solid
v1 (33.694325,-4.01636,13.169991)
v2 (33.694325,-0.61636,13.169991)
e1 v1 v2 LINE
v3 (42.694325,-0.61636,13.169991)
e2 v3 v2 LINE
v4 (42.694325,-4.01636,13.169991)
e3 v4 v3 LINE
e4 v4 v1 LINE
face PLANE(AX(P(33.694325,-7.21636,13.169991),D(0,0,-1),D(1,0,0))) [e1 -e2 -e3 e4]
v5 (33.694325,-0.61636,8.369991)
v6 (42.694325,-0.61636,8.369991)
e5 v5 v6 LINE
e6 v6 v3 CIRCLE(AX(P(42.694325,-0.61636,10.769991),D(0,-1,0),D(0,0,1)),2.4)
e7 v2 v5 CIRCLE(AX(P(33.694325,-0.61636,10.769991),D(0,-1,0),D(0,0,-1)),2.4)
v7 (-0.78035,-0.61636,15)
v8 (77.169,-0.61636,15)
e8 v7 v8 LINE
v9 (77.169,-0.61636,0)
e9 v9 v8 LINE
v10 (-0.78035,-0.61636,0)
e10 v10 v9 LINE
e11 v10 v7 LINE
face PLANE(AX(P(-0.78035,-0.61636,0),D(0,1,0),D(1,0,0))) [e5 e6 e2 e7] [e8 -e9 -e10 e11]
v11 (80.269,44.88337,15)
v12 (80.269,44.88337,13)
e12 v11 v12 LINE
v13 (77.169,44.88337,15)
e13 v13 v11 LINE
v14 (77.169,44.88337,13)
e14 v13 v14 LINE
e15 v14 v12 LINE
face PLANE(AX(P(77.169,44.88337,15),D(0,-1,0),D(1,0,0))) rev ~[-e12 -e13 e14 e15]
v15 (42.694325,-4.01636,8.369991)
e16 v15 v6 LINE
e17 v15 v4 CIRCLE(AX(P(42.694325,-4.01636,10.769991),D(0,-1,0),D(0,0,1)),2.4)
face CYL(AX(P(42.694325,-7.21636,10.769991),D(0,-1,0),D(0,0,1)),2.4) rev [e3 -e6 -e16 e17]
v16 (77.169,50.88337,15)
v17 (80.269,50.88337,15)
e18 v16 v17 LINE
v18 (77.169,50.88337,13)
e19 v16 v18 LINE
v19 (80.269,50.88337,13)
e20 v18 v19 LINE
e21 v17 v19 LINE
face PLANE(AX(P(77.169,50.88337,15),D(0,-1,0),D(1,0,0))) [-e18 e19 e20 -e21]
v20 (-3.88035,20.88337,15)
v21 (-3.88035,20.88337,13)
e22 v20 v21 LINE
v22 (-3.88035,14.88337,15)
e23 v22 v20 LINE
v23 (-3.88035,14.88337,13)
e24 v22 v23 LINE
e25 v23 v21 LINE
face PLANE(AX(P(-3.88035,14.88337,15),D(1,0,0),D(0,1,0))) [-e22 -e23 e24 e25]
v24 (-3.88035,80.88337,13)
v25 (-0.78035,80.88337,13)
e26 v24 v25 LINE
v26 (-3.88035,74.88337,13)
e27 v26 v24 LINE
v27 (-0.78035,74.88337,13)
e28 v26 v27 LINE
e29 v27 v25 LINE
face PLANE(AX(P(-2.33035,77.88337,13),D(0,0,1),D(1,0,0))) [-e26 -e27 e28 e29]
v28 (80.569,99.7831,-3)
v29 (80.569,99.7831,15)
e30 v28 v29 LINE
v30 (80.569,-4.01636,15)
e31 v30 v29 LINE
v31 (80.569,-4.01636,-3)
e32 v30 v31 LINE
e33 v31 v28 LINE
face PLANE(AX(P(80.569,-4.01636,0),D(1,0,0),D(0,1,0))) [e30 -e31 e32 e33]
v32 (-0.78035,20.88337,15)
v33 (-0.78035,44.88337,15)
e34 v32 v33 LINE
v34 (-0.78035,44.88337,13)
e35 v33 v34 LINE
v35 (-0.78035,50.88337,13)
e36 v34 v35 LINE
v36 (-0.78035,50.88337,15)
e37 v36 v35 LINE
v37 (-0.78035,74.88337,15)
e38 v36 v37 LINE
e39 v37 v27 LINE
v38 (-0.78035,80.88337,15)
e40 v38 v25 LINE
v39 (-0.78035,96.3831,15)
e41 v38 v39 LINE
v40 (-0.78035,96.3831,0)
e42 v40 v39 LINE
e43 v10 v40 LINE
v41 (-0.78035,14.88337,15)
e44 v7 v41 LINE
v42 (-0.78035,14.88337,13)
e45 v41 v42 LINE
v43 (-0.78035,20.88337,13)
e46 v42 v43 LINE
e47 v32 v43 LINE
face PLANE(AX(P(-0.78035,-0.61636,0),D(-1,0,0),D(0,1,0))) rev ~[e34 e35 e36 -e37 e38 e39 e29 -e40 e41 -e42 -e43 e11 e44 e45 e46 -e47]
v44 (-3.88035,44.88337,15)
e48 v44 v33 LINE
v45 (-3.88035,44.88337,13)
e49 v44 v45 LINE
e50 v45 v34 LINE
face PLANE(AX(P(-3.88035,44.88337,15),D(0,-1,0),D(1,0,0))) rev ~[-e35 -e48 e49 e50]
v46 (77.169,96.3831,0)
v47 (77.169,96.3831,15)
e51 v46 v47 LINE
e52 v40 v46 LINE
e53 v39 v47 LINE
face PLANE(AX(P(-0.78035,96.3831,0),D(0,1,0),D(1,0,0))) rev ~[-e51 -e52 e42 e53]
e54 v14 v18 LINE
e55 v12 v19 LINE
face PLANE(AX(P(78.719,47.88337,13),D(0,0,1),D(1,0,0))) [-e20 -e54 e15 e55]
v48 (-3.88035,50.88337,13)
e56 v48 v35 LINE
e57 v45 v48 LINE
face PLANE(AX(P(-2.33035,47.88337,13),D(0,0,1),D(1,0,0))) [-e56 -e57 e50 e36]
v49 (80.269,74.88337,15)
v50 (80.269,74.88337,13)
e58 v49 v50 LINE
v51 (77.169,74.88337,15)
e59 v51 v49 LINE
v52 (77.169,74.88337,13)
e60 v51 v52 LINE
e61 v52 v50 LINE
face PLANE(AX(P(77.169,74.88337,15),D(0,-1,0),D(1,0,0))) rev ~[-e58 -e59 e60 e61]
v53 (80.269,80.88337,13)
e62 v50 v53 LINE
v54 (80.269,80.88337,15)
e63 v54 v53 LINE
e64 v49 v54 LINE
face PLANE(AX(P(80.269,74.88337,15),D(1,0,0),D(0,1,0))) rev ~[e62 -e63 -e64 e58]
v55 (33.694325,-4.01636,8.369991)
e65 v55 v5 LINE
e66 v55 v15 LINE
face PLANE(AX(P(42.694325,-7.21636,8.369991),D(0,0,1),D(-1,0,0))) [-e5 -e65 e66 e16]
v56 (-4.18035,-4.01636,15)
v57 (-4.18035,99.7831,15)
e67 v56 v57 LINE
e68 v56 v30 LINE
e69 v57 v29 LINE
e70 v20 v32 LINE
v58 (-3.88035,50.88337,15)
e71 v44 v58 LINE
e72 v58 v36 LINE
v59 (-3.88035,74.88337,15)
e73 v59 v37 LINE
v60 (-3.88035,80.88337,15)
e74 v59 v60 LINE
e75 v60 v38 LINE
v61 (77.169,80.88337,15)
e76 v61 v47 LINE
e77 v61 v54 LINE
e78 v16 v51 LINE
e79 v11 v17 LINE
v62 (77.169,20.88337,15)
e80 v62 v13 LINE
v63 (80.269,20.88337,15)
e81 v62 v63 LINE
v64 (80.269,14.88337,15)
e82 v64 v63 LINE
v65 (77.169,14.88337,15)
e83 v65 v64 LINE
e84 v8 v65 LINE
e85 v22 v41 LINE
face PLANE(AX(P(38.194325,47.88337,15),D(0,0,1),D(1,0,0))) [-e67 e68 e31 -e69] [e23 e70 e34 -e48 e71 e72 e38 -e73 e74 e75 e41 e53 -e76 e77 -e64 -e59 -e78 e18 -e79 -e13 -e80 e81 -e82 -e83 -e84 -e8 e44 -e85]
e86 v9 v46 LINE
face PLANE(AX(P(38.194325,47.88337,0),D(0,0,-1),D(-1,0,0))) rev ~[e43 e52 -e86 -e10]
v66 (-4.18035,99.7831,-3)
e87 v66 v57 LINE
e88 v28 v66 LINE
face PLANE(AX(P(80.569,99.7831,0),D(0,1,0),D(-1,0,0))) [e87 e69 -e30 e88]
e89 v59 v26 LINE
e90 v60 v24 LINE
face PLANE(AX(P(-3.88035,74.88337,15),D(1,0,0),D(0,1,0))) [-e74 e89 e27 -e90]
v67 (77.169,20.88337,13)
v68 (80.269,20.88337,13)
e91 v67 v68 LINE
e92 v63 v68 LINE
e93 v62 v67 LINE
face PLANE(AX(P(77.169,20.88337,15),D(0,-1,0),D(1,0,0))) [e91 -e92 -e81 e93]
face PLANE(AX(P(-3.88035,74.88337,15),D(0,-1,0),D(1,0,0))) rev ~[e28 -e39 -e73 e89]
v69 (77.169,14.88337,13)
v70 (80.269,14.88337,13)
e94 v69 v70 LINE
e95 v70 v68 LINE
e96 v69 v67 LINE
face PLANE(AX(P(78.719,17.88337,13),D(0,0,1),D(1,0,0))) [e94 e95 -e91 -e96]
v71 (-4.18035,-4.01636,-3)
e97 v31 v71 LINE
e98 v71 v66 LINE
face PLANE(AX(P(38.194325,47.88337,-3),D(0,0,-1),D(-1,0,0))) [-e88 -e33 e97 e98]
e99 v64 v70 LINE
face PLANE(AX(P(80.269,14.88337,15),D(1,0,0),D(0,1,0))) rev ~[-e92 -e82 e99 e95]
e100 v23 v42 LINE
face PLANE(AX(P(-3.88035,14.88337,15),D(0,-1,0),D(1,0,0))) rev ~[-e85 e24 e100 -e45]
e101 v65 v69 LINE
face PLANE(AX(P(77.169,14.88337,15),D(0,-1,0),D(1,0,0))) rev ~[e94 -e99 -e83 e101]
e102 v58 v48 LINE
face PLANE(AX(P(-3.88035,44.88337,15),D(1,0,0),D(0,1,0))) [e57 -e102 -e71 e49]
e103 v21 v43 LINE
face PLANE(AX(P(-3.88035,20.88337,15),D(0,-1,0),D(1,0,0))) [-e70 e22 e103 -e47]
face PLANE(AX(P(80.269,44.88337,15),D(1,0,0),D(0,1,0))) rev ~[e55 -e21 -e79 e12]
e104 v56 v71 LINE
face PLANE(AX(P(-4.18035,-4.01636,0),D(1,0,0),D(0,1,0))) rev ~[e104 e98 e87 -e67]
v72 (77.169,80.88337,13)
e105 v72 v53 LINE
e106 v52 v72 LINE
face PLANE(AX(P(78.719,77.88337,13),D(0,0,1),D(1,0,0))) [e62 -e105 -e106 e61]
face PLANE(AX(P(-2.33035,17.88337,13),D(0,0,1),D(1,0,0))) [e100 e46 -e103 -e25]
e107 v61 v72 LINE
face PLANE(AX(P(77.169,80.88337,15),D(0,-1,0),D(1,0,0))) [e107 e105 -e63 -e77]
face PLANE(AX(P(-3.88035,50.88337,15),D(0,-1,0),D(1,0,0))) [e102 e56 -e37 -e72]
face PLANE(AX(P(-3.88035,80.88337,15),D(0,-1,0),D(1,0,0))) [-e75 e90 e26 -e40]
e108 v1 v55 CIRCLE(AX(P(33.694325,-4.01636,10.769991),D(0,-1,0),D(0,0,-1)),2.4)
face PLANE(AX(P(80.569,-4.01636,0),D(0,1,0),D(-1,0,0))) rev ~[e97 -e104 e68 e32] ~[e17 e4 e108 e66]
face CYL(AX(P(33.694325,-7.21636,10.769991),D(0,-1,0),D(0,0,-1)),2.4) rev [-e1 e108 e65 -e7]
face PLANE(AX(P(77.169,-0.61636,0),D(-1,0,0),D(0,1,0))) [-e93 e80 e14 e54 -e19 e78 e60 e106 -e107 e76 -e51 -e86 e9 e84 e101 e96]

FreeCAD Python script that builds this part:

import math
import FreeCAD as App
import Part
import Sketcher

V = App.Vector

doc = App.newDocument("Part")
body = doc.addObject("PartDesign::Body", "Body")

# Sketch on XY plane
sketch1 = body.newObject("Sketcher::SketchObject", "Sketch")
sketch1.AttachmentSupport = (doc.getObject("XY_Plane"), [""])
sketch1.MapMode = "FlatFace"
sketch1.addGeometry(Part.LineSegment(V(-4, 100, 0), V(-4, -4, 0)), False)
sketch1.addGeometry(Part.LineSegment(V(-4, -4, 0), V(81, -4, 0)), False)
sketch1.addGeometry(Part.LineSegment(V(81, -4, 0), V(81, 100, 0)), False)
sketch1.addGeometry(Part.LineSegment(V(81, 100, 0), V(-4, 100, 0)), False)
sketch1.addGeometry(Part.LineSegment(V(77, -1, 0), V(-1, -1, 0)), False)
sketch1.addGeometry(Part.LineSegment(V(-1, -1, 0), V(-1, 96, 0)), False)
sketch1.addGeometry(Part.LineSegment(V(-1, 96, 0), V(77, 96, 0)), False)
sketch1.addGeometry(Part.LineSegment(V(77, 96, 0), V(77, -1, 0)), False)
sketch1.addConstraint(Sketcher.Constraint("Coincident", 0, 2, 1, 1))
sketch1.addConstraint(Sketcher.Constraint("Coincident", 1, 2, 2, 1))
sketch1.addConstraint(Sketcher.Constraint("Coincident", 2, 2, 3, 1))
sketch1.addConstraint(Sketcher.Constraint("Coincident", 3, 2, 0, 1))
sketch1.addConstraint(Sketcher.Constraint("Coincident", 4, 2, 5, 1))
sketch1.addConstraint(Sketcher.Constraint("Coincident", 5, 2, 6, 1))
sketch1.addConstraint(Sketcher.Constraint("Coincident", 6, 2, 7, 1))
sketch1.addConstraint(Sketcher.Constraint("Coincident", 7, 2, 4, 1))
sketch1.addConstraint(Sketcher.Constraint("Vertical", 0))
sketch1.addConstraint(Sketcher.Constraint("Horizontal", 1))
sketch1.addConstraint(Sketcher.Constraint("Vertical", 2))
sketch1.addConstraint(Sketcher.Constraint("Horizontal", 3))
sketch1.addConstraint(Sketcher.Constraint("Horizontal", 4))
sketch1.addConstraint(Sketcher.Constraint("Vertical", 5))
sketch1.addConstraint(Sketcher.Constraint("Horizontal", 6))
sketch1.addConstraint(Sketcher.Constraint("Vertical", 7))
sketch1.addConstraint(Sketcher.Constraint("DistanceX", 0, 2, 4, 2, 3.4))
sketch1.addConstraint(Sketcher.Constraint("DistanceY", 0, 2, 4, 2, 3.4))
sketch1.addConstraint(Sketcher.Constraint("DistanceY", 5, 2, 3, 2, 3.4))
sketch1.addConstraint(Sketcher.Constraint("DistanceX", 6, 2, 2, 2, 3.4))
sketch1.addConstraint(Sketcher.Constraint("DistanceX", -1, 1, 1, 2, 80.569))
sketch1.addConstraint(Sketcher.Constraint("DistanceX", 1, 1, 1, 2, 84.74935))
sketch1.addConstraint(Sketcher.Constraint("DistanceY", 0, 2, 0, 1, 103.79946))
sketch1.addConstraint(Sketcher.Constraint("DistanceY", -1, 1, 2, 2, 99.7831))
pad1 = body.newObject("PartDesign::Pad", "Pad")
pad1.Profile = sketch1
pad1.Length = 15

# Sketch on XY plane
sketch2 = body.newObject("Sketcher::SketchObject", "Sketch001")
sketch2.AttachmentSupport = (doc.getObject("XY_Plane"), [""])
sketch2.MapMode = "FlatFace"
sketch2.addGeometry(Part.LineSegment(V(81, 100, 0), V(81, -4, 0)), False)
sketch2.addGeometry(Part.LineSegment(V(81, -4, 0), V(-4, -4, 0)), False)
sketch2.addGeometry(Part.LineSegment(V(-4, -4, 0), V(-4, 100, 0)), False)
sketch2.addGeometry(Part.LineSegment(V(-4, 100, 0), V(81, 100, 0)), False)
sketch2.addConstraint(Sketcher.Constraint("Coincident", 0, 2, 1, 1))
sketch2.addConstraint(Sketcher.Constraint("Coincident", 1, 2, 2, 1))
sketch2.addConstraint(Sketcher.Constraint("Coincident", 2, 2, 3, 1))
sketch2.addConstraint(Sketcher.Constraint("Coincident", 3, 2, 0, 1))
sketch2.addConstraint(Sketcher.Constraint("Vertical", 0))
sketch2.addConstraint(Sketcher.Constraint("Horizontal", 1))
sketch2.addConstraint(Sketcher.Constraint("Vertical", 2))
sketch2.addConstraint(Sketcher.Constraint("Horizontal", 3))
sketch2.addConstraint(Sketcher.Constraint("DistanceX", -1, 1, 0, 2, 80.569))
sketch2.addConstraint(Sketcher.Constraint("DistanceX", 1, 2, 1, 1, 84.74935))
sketch2.addConstraint(Sketcher.Constraint("DistanceY", 0, 2, 0, 1, 103.79946))
sketch2.addConstraint(Sketcher.Constraint("DistanceY", -1, 1, 2, 2, 99.7831))
pad2 = body.newObject("PartDesign::Pad", "Pad001")
pad2.Profile = sketch2
pad2.Length = 3
pad2.Reversed = True

# Sketch on XY plane
sketch3 = body.newObject("Sketcher::SketchObject", "Sketch002")
sketch3.AttachmentSupport = (doc.getObject("XY_Plane"), [""])
sketch3.MapMode = "FlatFace"
sketch3.AttachmentOffset = App.Placement(V(0, 0, 15), App.Rotation())
sketch3.addGeometry(Part.LineSegment(V(-3.9, 80.9, 0), V(-3.9, 74.9, 0)), False)
sketch3.addGeometry(Part.LineSegment(V(-3.9, 74.9, 0), V(-0.8, 74.9, 0)), False)
sketch3.addGeometry(Part.LineSegment(V(-0.8, 74.9, 0), V(-0.8, 80.9, 0)), False)
sketch3.addGeometry(Part.LineSegment(V(-0.8, 80.9, 0), V(-3.9, 80.9, 0)), False)
sketch3.addGeometry(Part.LineSegment(V(-3.9, 50.9, 0), V(-3.9, 44.9, 0)), False)
sketch3.addGeometry(Part.LineSegment(V(-3.9, 44.9, 0), V(-0.8, 44.9, 0)), False)
sketch3.addGeometry(Part.LineSegment(V(-0.8, 44.9, 0), V(-0.8, 50.9, 0)), False)
sketch3.addGeometry(Part.LineSegment(V(-0.8, 50.9, 0), V(-3.9, 50.9, 0)), False)
sketch3.addGeometry(Part.LineSegment(V(-3.9, 20.9, 0), V(-3.9, 14.9, 0)), False)
sketch3.addGeometry(Part.LineSegment(V(-3.9, 14.9, 0), V(-0.8, 14.9, 0)), False)
sketch3.addGeometry(Part.LineSegment(V(-0.8, 14.9, 0), V(-0.8, 20.9, 0)), False)
sketch3.addGeometry(Part.LineSegment(V(-0.8, 20.9, 0), V(-3.9, 20.9, 0)), False)
sketch3.addGeometry(Part.LineSegment(V(77.2, 20.9, 0), V(77.2, 14.9, 0)), False)
sketch3.addGeometry(Part.LineSegment(V(77.2, 14.9, 0), V(80.3, 14.9, 0)), False)
sketch3.addGeometry(Part.LineSegment(V(80.3, 14.9, 0), V(80.3, 20.9, 0)), False)
sketch3.addGeometry(Part.LineSegment(V(80.3, 20.9, 0), V(77.2, 20.9, 0)), False)
sketch3.addGeometry(Part.LineSegment(V(77.2, 50.9, 0), V(77.2, 44.9, 0)), False)
sketch3.addGeometry(Part.LineSegment(V(77.2, 44.9, 0), V(80.3, 44.9, 0)), False)
sketch3.addGeometry(Part.LineSegment(V(80.3, 44.9, 0), V(80.3, 50.9, 0)), False)
sketch3.addGeometry(Part.LineSegment(V(80.3, 50.9, 0), V(77.2, 50.9, 0)), False)
sketch3.addGeometry(Part.LineSegment(V(77.2, 80.9, 0), V(77.2, 74.9, 0)), False)
sketch3.addGeometry(Part.LineSegment(V(77.2, 74.9, 0), V(80.3, 74.9, 0)), False)
sketch3.addGeometry(Part.LineSegment(V(80.3, 74.9, 0), V(80.3, 80.9, 0)), False)
sketch3.addGeometry(Part.LineSegment(V(80.3, 80.9, 0), V(77.2, 80.9, 0)), False)
sketch3.addConstraint(Sketcher.Constraint("Coincident", 0, 2, 1, 1))
sketch3.addConstraint(Sketcher.Constraint("Coincident", 1, 2, 2, 1))
sketch3.addConstraint(Sketcher.Constraint("Coincident", 2, 2, 3, 1))
sketch3.addConstraint(Sketcher.Constraint("Coincident", 3, 2, 0, 1))
sketch3.addConstraint(Sketcher.Constraint("Coincident", 4, 2, 5, 1))
sketch3.addConstraint(Sketcher.Constraint("Coincident", 5, 2, 6, 1))
sketch3.addConstraint(Sketcher.Constraint("Coincident", 6, 2, 7, 1))
sketch3.addConstraint(Sketcher.Constraint("Coincident", 7, 2, 4, 1))
sketch3.addConstraint(Sketcher.Constraint("Coincident", 8, 2, 9, 1))
sketch3.addConstraint(Sketcher.Constraint("Coincident", 9, 2, 10, 1))
sketch3.addConstraint(Sketcher.Constraint("Coincident", 10, 2, 11, 1))
sketch3.addConstraint(Sketcher.Constraint("Coincident", 11, 2, 8, 1))
sketch3.addConstraint(Sketcher.Constraint("Coincident", 12, 2, 13, 1))
sketch3.addConstraint(Sketcher.Constraint("Coincident", 13, 2, 14, 1))
sketch3.addConstraint(Sketcher.Constraint("Coincident", 14, 2, 15, 1))
sketch3.addConstraint(Sketcher.Constraint("Coincident", 15, 2, 12, 1))
sketch3.addConstraint(Sketcher.Constraint("Coincident", 16, 2, 17, 1))
sketch3.addConstraint(Sketcher.Constraint("Coincident", 17, 2, 18, 1))
sketch3.addConstraint(Sketcher.Constraint("Coincident", 18, 2, 19, 1))
sketch3.addConstraint(Sketcher.Constraint("Coincident", 19, 2, 16, 1))
sketch3.addConstraint(Sketcher.Constraint("Coincident", 20, 2, 21, 1))
sketch3.addConstraint(Sketcher.Constraint("Coincident", 21, 2, 22, 1))
sketch3.addConstraint(Sketcher.Constraint("Coincident", 22, 2, 23, 1))
sketch3.addConstraint(Sketcher.Constraint("Coincident", 23, 2, 20, 1))
sketch3.addConstraint(Sketcher.Constraint("Vertical", 0))
sketch3.addConstraint(Sketcher.Constraint("Horizontal", 1))
sketch3.addConstraint(Sketcher.Constraint("Vertical", 2))
sketch3.addConstraint(Sketcher.Constraint("Horizontal", 3))
sketch3.addConstraint(Sketcher.Constraint("Vertical", 4))
sketch3.addConstraint(Sketcher.Constraint("Horizontal", 5))
sketch3.addConstraint(Sketcher.Constraint("Vertical", 6))
sketch3.addConstraint(Sketcher.Constraint("Horizontal", 7))
sketch3.addConstraint(Sketcher.Constraint("Vertical", 8))
sketch3.addConstraint(Sketcher.Constraint("Horizontal", 9))
sketch3.addConstraint(Sketcher.Constraint("Vertical", 10))
sketch3.addConstraint(Sketcher.Constraint("Horizontal", 11))
sketch3.addConstraint(Sketcher.Constraint("Vertical", 12))
sketch3.addConstraint(Sketcher.Constraint("Horizontal", 13))
sketch3.addConstraint(Sketcher.Constraint("Vertical", 14))
sketch3.addConstraint(Sketcher.Constraint("Horizontal", 15))
sketch3.addConstraint(Sketcher.Constraint("Vertical", 16))
sketch3.addConstraint(Sketcher.Constraint("Horizontal", 17))
sketch3.addConstraint(Sketcher.Constraint("Vertical", 18))
sketch3.addConstraint(Sketcher.Constraint("Horizontal", 19))
sketch3.addConstraint(Sketcher.Constraint("Vertical", 20))
sketch3.addConstraint(Sketcher.Constraint("Horizontal", 21))
sketch3.addConstraint(Sketcher.Constraint("Vertical", 22))
sketch3.addConstraint(Sketcher.Constraint("Horizontal", 23))
sketch3.addConstraint(Sketcher.Constraint("Horizontal", 9, 2, 12, 2))
sketch3.addConstraint(Sketcher.Constraint("Horizontal", 11, 2, 14, 2))
sketch3.addConstraint(Sketcher.Constraint("Horizontal", 5, 2, 16, 2))
sketch3.addConstraint(Sketcher.Constraint("Horizontal", 7, 2, 18, 2))
sketch3.addConstraint(Sketcher.Constraint("Horizontal", 1, 2, 20, 2))
sketch3.addConstraint(Sketcher.Constraint("Horizontal", 3, 2, 22, 2))
sketch3.addConstraint(Sketcher.Constraint("Vertical", 3, 2, 4, 2))
sketch3.addConstraint(Sketcher.Constraint("Vertical", 2, 2, 5, 2))
sketch3.addConstraint(Sketcher.Constraint("Vertical", 7, 2, 8, 2))
sketch3.addConstraint(Sketcher.Constraint("Vertical", 6, 2, 9, 2))
sketch3.addConstraint(Sketcher.Constraint("Vertical", 15, 2, 16, 2))
sketch3.addConstraint(Sketcher.Constraint("Vertical", 14, 2, 17, 2))
sketch3.addConstraint(Sketcher.Constraint("Vertical", 19, 2, 20, 2))
sketch3.addConstraint(Sketcher.Constraint("Vertical", 18, 2, 21, 2))
sketch3.addConstraint(Sketcher.Constraint("Equal", 11, 13))
sketch3.addConstraint(Sketcher.Constraint("Equal", 2, 4))
sketch3.addConstraint(Sketcher.Constraint("Equal", 6, 8))
sketch3.addConstraint(Sketcher.Constraint("DistanceY", 0, 2, 0, 1, 6.0))
sketch3.addConstraint(Sketcher.Constraint("DistanceX", 1, 1, 1, 2, 3.1))
sketch3.addConstraint(Sketcher.Constraint("DistanceY", 4, 2, 0, 2, 30.0))
sketch3.addConstraint(Sketcher.Constraint("DistanceY", 8, 2, 4, 2, 30.0))
sketch3.addConstraint(Sketcher.Constraint("DistanceX", -1, 1, 12, 2, 77.169))
sketch3.addConstraint(Sketcher.Constraint("DistanceX", 0, 2, -1, 1, 3.88035))
sketch3.addConstraint(Sketcher.Constraint("DistanceY", -1, 1, 0, 2, 74.88337))
pocket1 = body.newObject("PartDesign::Pocket", "Pocket")
pocket1.Profile = sketch3
pocket1.Length = 2

# Sketch on XZ plane
sketch4 = body.newObject("Sketcher::SketchObject", "Sketch003")
sketch4.AttachmentSupport = (doc.getObject("XZ_Plane"), [""])
sketch4.MapMode = "FlatFace"
sketch4.AttachmentOffset = App.Placement(V(0, 0, 7.21636), App.Rotation())
sketch4.addGeometry(Part.LineSegment(V(42.7, 13.2, 0), V(33.7, 13.2, 0)), False)
sketch4.addGeometry(Part.ArcOfCircle(Part.Circle(V(33.7, 10.8, 0), V(0, 0, 1), 2.4), math.radians(90), math.radians(270)), False)
sketch4.addGeometry(Part.LineSegment(V(33.7, 8.4, 0), V(42.7, 8.4, 0)), False)
sketch4.addGeometry(Part.ArcOfCircle(Part.Circle(V(42.7, 10.8, 0), V(0, 0, 1), 2.4), math.radians(-90), math.radians(90)), False)
sketch4.addConstraint(Sketcher.Constraint("Tangent", 0, 2, 1, 1))
sketch4.addConstraint(Sketcher.Constraint("Tangent", 1, 2, 2, 1))
sketch4.addConstraint(Sketcher.Constraint("Tangent", 2, 2, 3, 1))
sketch4.addConstraint(Sketcher.Constraint("Tangent", 3, 2, 0, 1))
sketch4.addConstraint(Sketcher.Constraint("Horizontal", 0))
sketch4.addConstraint(Sketcher.Constraint("Horizontal", 2))
sketch4.addConstraint(Sketcher.Constraint("Radius", 1, 2.4))
sketch4.addConstraint(Sketcher.Constraint("DistanceX", 0, 2, 0, 1, 9.0))
sketch4.addConstraint(Sketcher.Constraint("DistanceY", -1, 1, 1, 3, 10.769991))
sketch4.addConstraint(Sketcher.Constraint("DistanceX", -1, 1, 1, 3, 33.694325))
pocket2 = body.newObject("PartDesign::Pocket", "Pocket001")
pocket2.Profile = sketch4
pocket2.Length = 10

doc.recompute()
